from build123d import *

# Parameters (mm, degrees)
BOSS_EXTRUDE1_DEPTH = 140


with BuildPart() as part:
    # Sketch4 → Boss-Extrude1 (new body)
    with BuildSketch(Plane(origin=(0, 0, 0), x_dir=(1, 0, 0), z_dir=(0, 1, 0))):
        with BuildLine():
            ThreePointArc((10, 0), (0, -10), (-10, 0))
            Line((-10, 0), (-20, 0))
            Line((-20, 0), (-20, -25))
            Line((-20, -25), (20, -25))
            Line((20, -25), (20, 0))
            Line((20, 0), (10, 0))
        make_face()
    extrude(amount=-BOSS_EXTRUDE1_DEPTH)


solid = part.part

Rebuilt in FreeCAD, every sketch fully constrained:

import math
import FreeCAD as App
import Part
import Sketcher

doc = App.newDocument("Part")
body = doc.addObject("PartDesign::Body", "Body")

# Sketch on XZ plane
sketch1 = body.newObject("Sketcher::SketchObject", "Sketch")
sketch1.AttachmentSupport = (doc.getObject("XZ_Plane"), [""])
sketch1.MapMode = "FlatFace"
sketch1.addGeometry([
    Part.ArcOfCircle(Part.Circle(App.Vector(0, 0, 0), App.Vector(0, 0, 1), 10), math.radians(0), math.radians(180)),  # 0
    Part.LineSegment(App.Vector(-10, 0, 0), App.Vector(-20, 0, 0)),  # 1
    Part.LineSegment(App.Vector(-20, 0, 0), App.Vector(-20, 25, 0)),  # 2
    Part.LineSegment(App.Vector(-20, 25, 0), App.Vector(20, 25, 0)),  # 3
    Part.LineSegment(App.Vector(20, 25, 0), App.Vector(20, 0, 0)),  # 4
    Part.LineSegment(App.Vector(20, 0, 0), App.Vector(10, 0, 0)),  # 5
], False)
sketch1.addConstraint([
    Sketcher.Constraint("Coincident", 0, 2, 1, 1),
    Sketcher.Constraint("Coincident", 1, 2, 2, 1),
    Sketcher.Constraint("Coincident", 2, 2, 3, 1),
    Sketcher.Constraint("Coincident", 3, 2, 4, 1),
    Sketcher.Constraint("Coincident", 4, 2, 5, 1),
    Sketcher.Constraint("Coincident", 5, 2, 0, 1),
    Sketcher.Constraint("Horizontal", 1),
    Sketcher.Constraint("Vertical", 2),
    Sketcher.Constraint("Horizontal", 3),
    Sketcher.Constraint("Vertical", 4),
    Sketcher.Constraint("Horizontal", 5),
    Sketcher.Constraint("Coincident", 0, 3, -1, 1),
    Sketcher.Constraint("Symmetric", 1, 2, 4, 2, -1, 1),
    Sketcher.Constraint("PointOnObject", 0, 2, -1),
    Sketcher.Constraint("Radius", 0, 10.0),
    Sketcher.Constraint("DistanceX", 1, 2, 1, 1, 10.0),
    Sketcher.Constraint("DistanceY", 2, 1, 2, 2, 25.0),
])
pad1 = body.newObject("PartDesign::Pad", "Pad")
pad1.Profile = sketch1
pad1.Length = 140

doc.recompute()
